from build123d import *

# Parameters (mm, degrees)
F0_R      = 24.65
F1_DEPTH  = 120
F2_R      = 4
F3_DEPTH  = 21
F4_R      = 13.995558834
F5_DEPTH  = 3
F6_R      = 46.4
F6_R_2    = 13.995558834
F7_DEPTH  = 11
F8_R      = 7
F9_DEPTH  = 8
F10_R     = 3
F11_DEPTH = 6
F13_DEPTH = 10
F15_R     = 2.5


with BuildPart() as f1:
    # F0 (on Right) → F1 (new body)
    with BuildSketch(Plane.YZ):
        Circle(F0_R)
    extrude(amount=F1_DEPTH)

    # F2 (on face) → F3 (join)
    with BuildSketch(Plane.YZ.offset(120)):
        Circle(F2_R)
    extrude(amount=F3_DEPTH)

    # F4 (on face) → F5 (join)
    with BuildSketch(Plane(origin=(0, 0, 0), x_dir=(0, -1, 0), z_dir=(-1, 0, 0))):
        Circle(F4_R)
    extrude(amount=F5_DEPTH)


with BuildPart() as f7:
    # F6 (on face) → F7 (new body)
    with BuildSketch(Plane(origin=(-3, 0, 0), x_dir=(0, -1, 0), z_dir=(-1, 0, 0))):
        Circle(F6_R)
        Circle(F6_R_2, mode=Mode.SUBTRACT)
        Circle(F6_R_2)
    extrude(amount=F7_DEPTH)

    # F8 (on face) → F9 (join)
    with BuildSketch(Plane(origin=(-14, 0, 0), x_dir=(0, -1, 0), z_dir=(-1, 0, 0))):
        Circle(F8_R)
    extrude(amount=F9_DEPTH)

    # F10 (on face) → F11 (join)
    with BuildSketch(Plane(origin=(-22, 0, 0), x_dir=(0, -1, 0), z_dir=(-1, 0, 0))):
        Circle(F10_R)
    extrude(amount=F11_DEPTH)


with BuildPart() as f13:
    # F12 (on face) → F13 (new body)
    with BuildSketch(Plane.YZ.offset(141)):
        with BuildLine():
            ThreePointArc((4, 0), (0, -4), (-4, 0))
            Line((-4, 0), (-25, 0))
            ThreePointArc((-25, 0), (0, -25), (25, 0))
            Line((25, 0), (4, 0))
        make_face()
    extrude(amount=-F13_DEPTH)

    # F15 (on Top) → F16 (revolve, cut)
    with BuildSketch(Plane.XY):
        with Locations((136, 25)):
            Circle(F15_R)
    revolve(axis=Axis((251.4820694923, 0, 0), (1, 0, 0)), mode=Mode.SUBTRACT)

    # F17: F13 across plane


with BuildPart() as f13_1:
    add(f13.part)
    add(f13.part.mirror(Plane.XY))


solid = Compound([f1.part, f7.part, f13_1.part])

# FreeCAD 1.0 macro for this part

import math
import FreeCAD as App
import Part
import Sketcher
from FreeCAD import Vector

doc = App.newDocument("Part")
params = doc.addObject("Spreadsheet::Sheet", "Params")
for row, (alias, value) in enumerate([
    ("sketch1_diameter", "49.3 mm"),
    ("pad1_length", "120 mm"),
    ("sketch2_diameter", "8 mm"),
    ("pad2_length", "21 mm"),
    ("pad3_length", "3 mm"),
    ("sketch4_diameter", "92.8 mm"),
    ("pad4_length", "11 mm"),
    ("sketch5_diameter", "14 mm"),
    ("pad5_length", "8 mm"),
    ("sketch6_diameter", "6 mm"),
    ("pad6_length", "6 mm"),
    ("sketch7_radius", "4 mm"),
    ("sketch7_radius2", "25 mm"),
    ("pad7_length", "10 mm"),
    ("sketch8_diameter", "5 mm"),
    ("groove_angle", "360 deg"),
], start=1):
    params.set(f"A{row}", alias)
    params.set(f"B{row}", "=" + value)
    params.setAlias(f"B{row}", alias)

body = doc.addObject("PartDesign::Body", "Body")

sketch1 = doc.addObject("Sketcher::SketchObject", "Sketch")
body.addObject(sketch1)
sketch1.AttachmentSupport = (doc.YZ_Plane, [""])
sketch1.MapMode = "FlatFace"
sketch1.addGeometry(Part.Circle(Vector(0, 0, 0), Vector(0, 0, 1), 25), False)
sketch1.addConstraint(Sketcher.Constraint("Coincident", 0, 3, -1, 1))
sketch1.addConstraint(Sketcher.Constraint("Diameter", 0, 49.3))
sketch1.setExpression("Constraints[1]", "Params.sketch1_diameter")
pad1 = doc.addObject("PartDesign::Pad", "Pad")
body.addObject(pad1)
pad1.Profile = sketch1
pad1.setExpression("Length", "Params.pad1_length")

sketch2 = doc.addObject("Sketcher::SketchObject", "Sketch001")
body.addObject(sketch2)
sketch2.AttachmentSupport = (doc.YZ_Plane, [""])
sketch2.MapMode = "FlatFace"
sketch2.AttachmentOffset = App.Placement(Vector(0, 0, 120), App.Rotation())
sketch2.addGeometry(Part.Circle(Vector(0, 0, 0), Vector(0, 0, 1), 4), False)
sketch2.addConstraint(Sketcher.Constraint("Coincident", 0, 3, -1, 1))
sketch2.addConstraint(Sketcher.Constraint("Diameter", 0, 8.0))
sketch2.setExpression("Constraints[1]", "Params.sketch2_diameter")
pad2 = doc.addObject("PartDesign::Pad", "Pad001")
body.addObject(pad2)
pad2.Profile = sketch2
pad2.setExpression("Length", "Params.pad2_length")

sketch3 = doc.addObject("Sketcher::SketchObject", "Sketch002")
body.addObject(sketch3)
sketch3.AttachmentSupport = (doc.YZ_Plane, [""])
sketch3.MapMode = "FlatFace"
sketch3.addGeometry(Part.Circle(Vector(0, 0, 0), Vector(0, 0, 1), 14), False)
sketch3.addConstraint(Sketcher.Constraint("Coincident", 0, 3, -1, 1))
sketch3.addConstraint(Sketcher.Constraint("Diameter", 0, 27.991118))
pad3 = doc.addObject("PartDesign::Pad", "Pad002")
body.addObject(pad3)
pad3.Profile = sketch3
pad3.setExpression("Length", "Params.pad3_length")
pad3.Reversed = True
body2 = doc.addObject("PartDesign::Body", "Body001")

sketch4 = doc.addObject("Sketcher::SketchObject", "Sketch003")
body2.addObject(sketch4)
sketch4.AttachmentSupport = (doc.getObject("YZ_Plane001"), [""])
sketch4.MapMode = "FlatFace"
sketch4.AttachmentOffset = App.Placement(Vector(0, 0, -3), App.Rotation())
sketch4.addGeometry(Part.Circle(Vector(0, 0, 0), Vector(0, 0, 1), 46), False)
sketch4.addConstraint(Sketcher.Constraint("Coincident", 0, 3, -1, 1))
sketch4.addConstraint(Sketcher.Constraint("Diameter", 0, 92.8))
sketch4.setExpression("Constraints[1]", "Params.sketch4_diameter")
pad4 = doc.addObject("PartDesign::Pad", "Pad003")
body2.addObject(pad4)
pad4.Profile = sketch4
pad4.setExpression("Length", "Params.pad4_length")
pad4.Reversed = True

sketch5 = doc.addObject("Sketcher::SketchObject", "Sketch004")
body2.addObject(sketch5)
sketch5.AttachmentSupport = (doc.getObject("YZ_Plane001"), [""])
sketch5.MapMode = "FlatFace"
sketch5.AttachmentOffset = App.Placement(Vector(0, 0, -14), App.Rotation())
sketch5.addGeometry(Part.Circle(Vector(0, 0, 0), Vector(0, 0, 1), 7), False)
sketch5.addConstraint(Sketcher.Constraint("Coincident", 0, 3, -1, 1))
sketch5.addConstraint(Sketcher.Constraint("Diameter", 0, 14.0))
sketch5.setExpression("Constraints[1]", "Params.sketch5_diameter")
pad5 = doc.addObject("PartDesign::Pad", "Pad004")
body2.addObject(pad5)
pad5.Profile = sketch5
pad5.setExpression("Length", "Params.pad5_length")
pad5.Reversed = True

sketch6 = doc.addObject("Sketcher::SketchObject", "Sketch005")
body2.addObject(sketch6)
sketch6.AttachmentSupport = (doc.getObject("YZ_Plane001"), [""])
sketch6.MapMode = "FlatFace"
sketch6.AttachmentOffset = App.Placement(Vector(0, 0, -22), App.Rotation())
sketch6.addGeometry(Part.Circle(Vector(0, 0, 0), Vector(0, 0, 1), 3), False)
sketch6.addConstraint(Sketcher.Constraint("Coincident", 0, 3, -1, 1))
sketch6.addConstraint(Sketcher.Constraint("Diameter", 0, 6.0))
sketch6.setExpression("Constraints[1]", "Params.sketch6_diameter")
pad6 = doc.addObject("PartDesign::Pad", "Pad005")
body2.addObject(pad6)
pad6.Profile = sketch6
pad6.setExpression("Length", "Params.pad6_length")
pad6.Reversed = True
body3 = doc.addObject("PartDesign::Body", "Body002")

sketch7 = doc.addObject("Sketcher::SketchObject", "Sketch006")
body3.addObject(sketch7)
sketch7.AttachmentSupport = (doc.getObject("YZ_Plane002"), [""])
sketch7.MapMode = "FlatFace"
sketch7.AttachmentOffset = App.Placement(Vector(0, 0, 141), App.Rotation())
sketch7.addGeometry(Part.ArcOfCircle(Part.Circle(Vector(0, 0, 0), Vector(0, 0, 1), 4), math.radians(180), math.radians(360)), False)
sketch7.addGeometry(Part.LineSegment(Vector(-4, 0, 0), Vector(-25, 0, 0)), False)
sketch7.addGeometry(Part.ArcOfCircle(Part.Circle(Vector(0, 0, 0), Vector(0, 0, 1), 25), math.radians(180), math.radians(360)), False)
sketch7.addGeometry(Part.LineSegment(Vector(25, 0, 0), Vector(4, 0, 0)), False)
sketch7.addConstraint(Sketcher.Constraint("Coincident", 0, 1, 1, 1))
sketch7.addConstraint(Sketcher.Constraint("Coincident", 1, 2, 2, 1))
sketch7.addConstraint(Sketcher.Constraint("Coincident", 2, 2, 3, 1))
sketch7.addConstraint(Sketcher.Constraint("Coincident", 3, 2, 0, 2))
sketch7.addConstraint(Sketcher.Constraint("Horizontal", 1))
sketch7.addConstraint(Sketcher.Constraint("Horizontal", 3))
sketch7.addConstraint(Sketcher.Constraint("Coincident", 0, 3, -1, 1))
sketch7.addConstraint(Sketcher.Constraint("Coincident", 2, 3, -1, 1))
sketch7.addConstraint(Sketcher.Constraint("PointOnObject", 0, 1, -1))
sketch7.addConstraint(Sketcher.Constraint("PointOnObject", 2, 2, -1))
sketch7.addConstraint(Sketcher.Constraint("Radius", 0, 4.0))
sketch7.addConstraint(Sketcher.Constraint("Radius", 2, 25.0))
sketch7.setExpression("Constraints[10]", "Params.sketch7_radius")
sketch7.setExpression("Constraints[11]", "Params.sketch7_radius2")
pad7 = doc.addObject("PartDesign::Pad", "Pad006")
body3.addObject(pad7)
pad7.Profile = sketch7
pad7.setExpression("Length", "Params.pad7_length")
pad7.Reversed = True

sketch8 = doc.addObject("Sketcher::SketchObject", "Sketch007")
body3.addObject(sketch8)
sketch8.AttachmentSupport = (doc.getObject("XY_Plane002"), [""])
sketch8.MapMode = "FlatFace"
sketch8.addGeometry(Part.Circle(Vector(136, 25, 0), Vector(0, 0, 1), 2.5), False)
sketch8.addConstraint(Sketcher.Constraint("Diameter", 0, 5.0))
sketch8.addConstraint(Sketcher.Constraint("DistanceX", -1, 1, 0, 3, 136.0))
sketch8.addConstraint(Sketcher.Constraint("DistanceY", -1, 1, 0, 3, 25.0))
sketch8.setExpression("Constraints[0]", "Params.sketch8_diameter")
groove = doc.addObject("PartDesign::Groove", "Groove")
body3.addObject(groove)
groove.Profile = sketch8
groove.ReferenceAxis = (sketch8, ["H_Axis"])
groove.setExpression("Angle", "Params.groove_angle")
body4 = doc.addObject("PartDesign::Body", "Body003")
doc.recompute()

body4.BaseFeature = body3
doc.recompute()

mirroring = doc.addObject("Part::Mirroring", "Mirroring")
mirroring.Source = body3
mirroring.Base = Vector(0, 0, 0)
mirroring.Normal = Vector(0, 0, 1)
body5 = doc.addObject("PartDesign::Body", "Body004")
body5.BaseFeature = mirroring
boolean = doc.addObject("PartDesign::Boolean", "Boolean")
body4.addObject(boolean)
boolean.Type = "Fuse"
boolean.addObjects([body5])
doc.recompute()
mirroring.Visibility = False

doc.recompute()
